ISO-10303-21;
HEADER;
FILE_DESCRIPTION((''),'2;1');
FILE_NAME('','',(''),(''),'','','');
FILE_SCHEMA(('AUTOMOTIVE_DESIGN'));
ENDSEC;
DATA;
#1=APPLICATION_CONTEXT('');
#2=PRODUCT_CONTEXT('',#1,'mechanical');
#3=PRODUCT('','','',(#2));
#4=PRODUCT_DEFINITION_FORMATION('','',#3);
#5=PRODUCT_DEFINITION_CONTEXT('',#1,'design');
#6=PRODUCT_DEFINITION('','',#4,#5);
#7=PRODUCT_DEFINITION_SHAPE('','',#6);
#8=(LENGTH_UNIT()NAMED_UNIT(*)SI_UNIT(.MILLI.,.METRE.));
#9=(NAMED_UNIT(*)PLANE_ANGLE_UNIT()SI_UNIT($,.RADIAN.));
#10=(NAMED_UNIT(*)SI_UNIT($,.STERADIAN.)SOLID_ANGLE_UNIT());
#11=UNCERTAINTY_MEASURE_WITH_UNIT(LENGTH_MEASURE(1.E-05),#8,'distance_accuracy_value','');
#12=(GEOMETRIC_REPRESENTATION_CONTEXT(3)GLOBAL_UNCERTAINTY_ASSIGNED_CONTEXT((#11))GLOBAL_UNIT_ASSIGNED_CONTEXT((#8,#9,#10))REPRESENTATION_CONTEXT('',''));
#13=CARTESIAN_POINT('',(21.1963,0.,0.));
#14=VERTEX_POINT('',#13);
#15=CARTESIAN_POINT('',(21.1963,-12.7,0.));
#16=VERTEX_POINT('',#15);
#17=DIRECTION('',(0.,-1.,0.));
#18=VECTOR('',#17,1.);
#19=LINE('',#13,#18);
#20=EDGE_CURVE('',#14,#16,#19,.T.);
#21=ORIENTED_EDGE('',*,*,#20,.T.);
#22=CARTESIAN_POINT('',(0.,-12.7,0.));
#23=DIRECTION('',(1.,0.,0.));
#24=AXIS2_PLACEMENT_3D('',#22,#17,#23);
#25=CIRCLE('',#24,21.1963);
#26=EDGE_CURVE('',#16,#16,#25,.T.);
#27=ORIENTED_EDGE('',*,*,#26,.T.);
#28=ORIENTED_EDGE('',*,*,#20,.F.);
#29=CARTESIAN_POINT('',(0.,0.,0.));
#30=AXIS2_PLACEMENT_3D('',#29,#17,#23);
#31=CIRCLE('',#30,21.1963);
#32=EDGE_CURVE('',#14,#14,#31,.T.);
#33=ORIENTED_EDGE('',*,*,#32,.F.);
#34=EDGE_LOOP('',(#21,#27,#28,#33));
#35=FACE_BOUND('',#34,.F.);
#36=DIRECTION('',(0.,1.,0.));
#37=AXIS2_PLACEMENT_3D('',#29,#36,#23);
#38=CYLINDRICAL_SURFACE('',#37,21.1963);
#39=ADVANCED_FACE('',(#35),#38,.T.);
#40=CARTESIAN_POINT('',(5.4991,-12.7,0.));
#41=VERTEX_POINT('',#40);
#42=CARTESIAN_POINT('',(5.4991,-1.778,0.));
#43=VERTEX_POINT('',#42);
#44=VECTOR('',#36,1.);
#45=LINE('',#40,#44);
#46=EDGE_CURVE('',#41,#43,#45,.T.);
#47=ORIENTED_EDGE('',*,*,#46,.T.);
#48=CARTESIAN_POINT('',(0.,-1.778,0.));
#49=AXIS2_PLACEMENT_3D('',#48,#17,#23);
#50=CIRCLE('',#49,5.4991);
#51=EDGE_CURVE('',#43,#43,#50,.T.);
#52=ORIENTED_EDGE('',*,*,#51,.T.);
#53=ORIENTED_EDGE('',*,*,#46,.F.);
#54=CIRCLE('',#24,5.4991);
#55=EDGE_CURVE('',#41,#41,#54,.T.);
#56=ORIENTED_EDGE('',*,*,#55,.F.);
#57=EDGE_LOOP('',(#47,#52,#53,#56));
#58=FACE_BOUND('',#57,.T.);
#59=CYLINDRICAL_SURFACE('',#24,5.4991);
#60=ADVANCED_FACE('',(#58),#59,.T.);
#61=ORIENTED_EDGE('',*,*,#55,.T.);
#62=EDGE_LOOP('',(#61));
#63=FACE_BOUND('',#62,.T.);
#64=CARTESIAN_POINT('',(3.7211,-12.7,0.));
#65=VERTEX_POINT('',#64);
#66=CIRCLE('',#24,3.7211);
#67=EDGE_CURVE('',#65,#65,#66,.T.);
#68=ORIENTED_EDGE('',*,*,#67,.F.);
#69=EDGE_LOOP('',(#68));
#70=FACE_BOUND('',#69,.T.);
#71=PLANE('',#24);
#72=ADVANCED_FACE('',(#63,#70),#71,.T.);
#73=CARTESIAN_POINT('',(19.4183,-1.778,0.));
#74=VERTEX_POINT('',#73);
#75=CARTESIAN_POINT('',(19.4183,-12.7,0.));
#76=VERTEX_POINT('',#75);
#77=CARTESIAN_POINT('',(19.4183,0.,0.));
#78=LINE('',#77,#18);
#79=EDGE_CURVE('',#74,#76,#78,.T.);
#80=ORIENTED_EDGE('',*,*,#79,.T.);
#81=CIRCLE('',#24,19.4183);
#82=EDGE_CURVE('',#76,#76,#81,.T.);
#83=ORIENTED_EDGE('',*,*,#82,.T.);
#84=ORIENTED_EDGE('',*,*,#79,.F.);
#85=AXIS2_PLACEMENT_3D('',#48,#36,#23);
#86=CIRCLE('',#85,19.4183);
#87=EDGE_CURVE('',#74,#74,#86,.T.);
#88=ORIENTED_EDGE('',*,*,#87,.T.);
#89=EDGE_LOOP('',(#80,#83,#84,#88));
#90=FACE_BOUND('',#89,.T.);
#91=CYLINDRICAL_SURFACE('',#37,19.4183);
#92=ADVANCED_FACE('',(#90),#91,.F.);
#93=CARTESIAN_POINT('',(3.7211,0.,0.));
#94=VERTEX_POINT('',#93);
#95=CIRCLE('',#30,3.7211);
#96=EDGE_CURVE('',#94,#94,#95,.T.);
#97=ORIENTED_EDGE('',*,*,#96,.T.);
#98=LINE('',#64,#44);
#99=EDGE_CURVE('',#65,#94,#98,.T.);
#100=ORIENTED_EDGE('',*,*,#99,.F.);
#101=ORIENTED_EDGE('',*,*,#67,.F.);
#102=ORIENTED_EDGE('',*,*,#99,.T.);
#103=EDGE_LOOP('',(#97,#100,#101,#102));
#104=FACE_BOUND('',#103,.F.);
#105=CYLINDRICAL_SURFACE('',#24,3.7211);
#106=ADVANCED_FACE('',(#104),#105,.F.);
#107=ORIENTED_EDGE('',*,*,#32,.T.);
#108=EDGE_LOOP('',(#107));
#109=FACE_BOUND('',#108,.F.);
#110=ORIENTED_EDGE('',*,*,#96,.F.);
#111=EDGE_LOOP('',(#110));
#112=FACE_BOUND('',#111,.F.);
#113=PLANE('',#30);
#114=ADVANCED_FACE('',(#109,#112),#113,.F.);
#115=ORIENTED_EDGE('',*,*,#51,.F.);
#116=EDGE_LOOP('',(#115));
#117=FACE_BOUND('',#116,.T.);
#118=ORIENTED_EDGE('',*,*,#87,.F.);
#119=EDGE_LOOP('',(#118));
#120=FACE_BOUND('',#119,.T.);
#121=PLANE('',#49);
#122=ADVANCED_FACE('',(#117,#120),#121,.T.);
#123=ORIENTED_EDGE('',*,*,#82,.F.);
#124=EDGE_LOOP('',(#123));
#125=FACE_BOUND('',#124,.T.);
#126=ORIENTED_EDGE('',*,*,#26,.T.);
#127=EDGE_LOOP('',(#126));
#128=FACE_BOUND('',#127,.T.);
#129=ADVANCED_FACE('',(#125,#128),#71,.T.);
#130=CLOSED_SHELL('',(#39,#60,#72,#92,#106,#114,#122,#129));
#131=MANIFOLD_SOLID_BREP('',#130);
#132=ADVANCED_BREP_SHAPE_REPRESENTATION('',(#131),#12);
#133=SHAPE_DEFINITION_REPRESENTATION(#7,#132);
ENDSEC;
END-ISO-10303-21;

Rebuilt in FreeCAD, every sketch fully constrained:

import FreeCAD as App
import Part
import Sketcher
from FreeCAD import Vector
Q = App.Units.Quantity


def faces_at(feature, points):
    """Names of the faces that lie closest to the given points."""
    faces = feature.Shape.Faces
    near = lambda p: min(range(len(faces)), key=lambda i: faces[i].distToShape(Part.Vertex(*p))[0])
    return sorted({f"Face{near(p) + 1}" for p in points})

doc = App.newDocument("Part")
body = doc.addObject("PartDesign::Body", "Body")

sketch1 = body.newObject("Sketcher::SketchObject", "Sketch")
sketch1.AttachmentSupport = (doc.getObject("XZ_Plane"), [""])
sketch1.MapMode = "FlatFace"
sketch1.addGeometry(Part.Circle(Vector(0, 0, 0), Vector(0, 0, 1), 21), False)
sketch1.addConstraint([
    Sketcher.Constraint("Coincident", 0, 3, -1, 1),
    Sketcher.Constraint("Diameter", 0, Q("1.669 in")),
])
pad1 = body.newObject("PartDesign::Pad", "Pad")
pad1.Profile = sketch1
pad1.Length = Q("0.5 in")

sketch2 = body.newObject("Sketcher::SketchObject", "Sketch001")
sketch2.AttachmentSupport = (doc.getObject("XZ_Plane"), [""])
sketch2.MapMode = "FlatFace"
sketch2.AttachmentOffset = App.Placement(Vector(0, 0, 0.5 * 25.4), App.Rotation())
sketch2.addGeometry(Part.Circle(Vector(0, 0, 0), Vector(0, 0, 1), 3.7), False)
sketch2.addConstraint([
    Sketcher.Constraint("Coincident", 0, 3, -1, 1),
    Sketcher.Constraint("Diameter", 0, Q("0.293 in")),
])
pocket1 = body.newObject("PartDesign::Pocket", "Pocket")
pocket1.Profile = sketch2
pocket1.Type = "ThroughAll"
doc.recompute()

thickness = body.newObject("PartDesign::Thickness", "Thickness")
thickness.Base = (pocket1, faces_at(pocket1, [(-8.479, -12.7, -8.479)]))
thickness.Value = Q("0.07 in")
thickness.Reversed = True
thickness.Join = "Arc"

doc.recompute()
